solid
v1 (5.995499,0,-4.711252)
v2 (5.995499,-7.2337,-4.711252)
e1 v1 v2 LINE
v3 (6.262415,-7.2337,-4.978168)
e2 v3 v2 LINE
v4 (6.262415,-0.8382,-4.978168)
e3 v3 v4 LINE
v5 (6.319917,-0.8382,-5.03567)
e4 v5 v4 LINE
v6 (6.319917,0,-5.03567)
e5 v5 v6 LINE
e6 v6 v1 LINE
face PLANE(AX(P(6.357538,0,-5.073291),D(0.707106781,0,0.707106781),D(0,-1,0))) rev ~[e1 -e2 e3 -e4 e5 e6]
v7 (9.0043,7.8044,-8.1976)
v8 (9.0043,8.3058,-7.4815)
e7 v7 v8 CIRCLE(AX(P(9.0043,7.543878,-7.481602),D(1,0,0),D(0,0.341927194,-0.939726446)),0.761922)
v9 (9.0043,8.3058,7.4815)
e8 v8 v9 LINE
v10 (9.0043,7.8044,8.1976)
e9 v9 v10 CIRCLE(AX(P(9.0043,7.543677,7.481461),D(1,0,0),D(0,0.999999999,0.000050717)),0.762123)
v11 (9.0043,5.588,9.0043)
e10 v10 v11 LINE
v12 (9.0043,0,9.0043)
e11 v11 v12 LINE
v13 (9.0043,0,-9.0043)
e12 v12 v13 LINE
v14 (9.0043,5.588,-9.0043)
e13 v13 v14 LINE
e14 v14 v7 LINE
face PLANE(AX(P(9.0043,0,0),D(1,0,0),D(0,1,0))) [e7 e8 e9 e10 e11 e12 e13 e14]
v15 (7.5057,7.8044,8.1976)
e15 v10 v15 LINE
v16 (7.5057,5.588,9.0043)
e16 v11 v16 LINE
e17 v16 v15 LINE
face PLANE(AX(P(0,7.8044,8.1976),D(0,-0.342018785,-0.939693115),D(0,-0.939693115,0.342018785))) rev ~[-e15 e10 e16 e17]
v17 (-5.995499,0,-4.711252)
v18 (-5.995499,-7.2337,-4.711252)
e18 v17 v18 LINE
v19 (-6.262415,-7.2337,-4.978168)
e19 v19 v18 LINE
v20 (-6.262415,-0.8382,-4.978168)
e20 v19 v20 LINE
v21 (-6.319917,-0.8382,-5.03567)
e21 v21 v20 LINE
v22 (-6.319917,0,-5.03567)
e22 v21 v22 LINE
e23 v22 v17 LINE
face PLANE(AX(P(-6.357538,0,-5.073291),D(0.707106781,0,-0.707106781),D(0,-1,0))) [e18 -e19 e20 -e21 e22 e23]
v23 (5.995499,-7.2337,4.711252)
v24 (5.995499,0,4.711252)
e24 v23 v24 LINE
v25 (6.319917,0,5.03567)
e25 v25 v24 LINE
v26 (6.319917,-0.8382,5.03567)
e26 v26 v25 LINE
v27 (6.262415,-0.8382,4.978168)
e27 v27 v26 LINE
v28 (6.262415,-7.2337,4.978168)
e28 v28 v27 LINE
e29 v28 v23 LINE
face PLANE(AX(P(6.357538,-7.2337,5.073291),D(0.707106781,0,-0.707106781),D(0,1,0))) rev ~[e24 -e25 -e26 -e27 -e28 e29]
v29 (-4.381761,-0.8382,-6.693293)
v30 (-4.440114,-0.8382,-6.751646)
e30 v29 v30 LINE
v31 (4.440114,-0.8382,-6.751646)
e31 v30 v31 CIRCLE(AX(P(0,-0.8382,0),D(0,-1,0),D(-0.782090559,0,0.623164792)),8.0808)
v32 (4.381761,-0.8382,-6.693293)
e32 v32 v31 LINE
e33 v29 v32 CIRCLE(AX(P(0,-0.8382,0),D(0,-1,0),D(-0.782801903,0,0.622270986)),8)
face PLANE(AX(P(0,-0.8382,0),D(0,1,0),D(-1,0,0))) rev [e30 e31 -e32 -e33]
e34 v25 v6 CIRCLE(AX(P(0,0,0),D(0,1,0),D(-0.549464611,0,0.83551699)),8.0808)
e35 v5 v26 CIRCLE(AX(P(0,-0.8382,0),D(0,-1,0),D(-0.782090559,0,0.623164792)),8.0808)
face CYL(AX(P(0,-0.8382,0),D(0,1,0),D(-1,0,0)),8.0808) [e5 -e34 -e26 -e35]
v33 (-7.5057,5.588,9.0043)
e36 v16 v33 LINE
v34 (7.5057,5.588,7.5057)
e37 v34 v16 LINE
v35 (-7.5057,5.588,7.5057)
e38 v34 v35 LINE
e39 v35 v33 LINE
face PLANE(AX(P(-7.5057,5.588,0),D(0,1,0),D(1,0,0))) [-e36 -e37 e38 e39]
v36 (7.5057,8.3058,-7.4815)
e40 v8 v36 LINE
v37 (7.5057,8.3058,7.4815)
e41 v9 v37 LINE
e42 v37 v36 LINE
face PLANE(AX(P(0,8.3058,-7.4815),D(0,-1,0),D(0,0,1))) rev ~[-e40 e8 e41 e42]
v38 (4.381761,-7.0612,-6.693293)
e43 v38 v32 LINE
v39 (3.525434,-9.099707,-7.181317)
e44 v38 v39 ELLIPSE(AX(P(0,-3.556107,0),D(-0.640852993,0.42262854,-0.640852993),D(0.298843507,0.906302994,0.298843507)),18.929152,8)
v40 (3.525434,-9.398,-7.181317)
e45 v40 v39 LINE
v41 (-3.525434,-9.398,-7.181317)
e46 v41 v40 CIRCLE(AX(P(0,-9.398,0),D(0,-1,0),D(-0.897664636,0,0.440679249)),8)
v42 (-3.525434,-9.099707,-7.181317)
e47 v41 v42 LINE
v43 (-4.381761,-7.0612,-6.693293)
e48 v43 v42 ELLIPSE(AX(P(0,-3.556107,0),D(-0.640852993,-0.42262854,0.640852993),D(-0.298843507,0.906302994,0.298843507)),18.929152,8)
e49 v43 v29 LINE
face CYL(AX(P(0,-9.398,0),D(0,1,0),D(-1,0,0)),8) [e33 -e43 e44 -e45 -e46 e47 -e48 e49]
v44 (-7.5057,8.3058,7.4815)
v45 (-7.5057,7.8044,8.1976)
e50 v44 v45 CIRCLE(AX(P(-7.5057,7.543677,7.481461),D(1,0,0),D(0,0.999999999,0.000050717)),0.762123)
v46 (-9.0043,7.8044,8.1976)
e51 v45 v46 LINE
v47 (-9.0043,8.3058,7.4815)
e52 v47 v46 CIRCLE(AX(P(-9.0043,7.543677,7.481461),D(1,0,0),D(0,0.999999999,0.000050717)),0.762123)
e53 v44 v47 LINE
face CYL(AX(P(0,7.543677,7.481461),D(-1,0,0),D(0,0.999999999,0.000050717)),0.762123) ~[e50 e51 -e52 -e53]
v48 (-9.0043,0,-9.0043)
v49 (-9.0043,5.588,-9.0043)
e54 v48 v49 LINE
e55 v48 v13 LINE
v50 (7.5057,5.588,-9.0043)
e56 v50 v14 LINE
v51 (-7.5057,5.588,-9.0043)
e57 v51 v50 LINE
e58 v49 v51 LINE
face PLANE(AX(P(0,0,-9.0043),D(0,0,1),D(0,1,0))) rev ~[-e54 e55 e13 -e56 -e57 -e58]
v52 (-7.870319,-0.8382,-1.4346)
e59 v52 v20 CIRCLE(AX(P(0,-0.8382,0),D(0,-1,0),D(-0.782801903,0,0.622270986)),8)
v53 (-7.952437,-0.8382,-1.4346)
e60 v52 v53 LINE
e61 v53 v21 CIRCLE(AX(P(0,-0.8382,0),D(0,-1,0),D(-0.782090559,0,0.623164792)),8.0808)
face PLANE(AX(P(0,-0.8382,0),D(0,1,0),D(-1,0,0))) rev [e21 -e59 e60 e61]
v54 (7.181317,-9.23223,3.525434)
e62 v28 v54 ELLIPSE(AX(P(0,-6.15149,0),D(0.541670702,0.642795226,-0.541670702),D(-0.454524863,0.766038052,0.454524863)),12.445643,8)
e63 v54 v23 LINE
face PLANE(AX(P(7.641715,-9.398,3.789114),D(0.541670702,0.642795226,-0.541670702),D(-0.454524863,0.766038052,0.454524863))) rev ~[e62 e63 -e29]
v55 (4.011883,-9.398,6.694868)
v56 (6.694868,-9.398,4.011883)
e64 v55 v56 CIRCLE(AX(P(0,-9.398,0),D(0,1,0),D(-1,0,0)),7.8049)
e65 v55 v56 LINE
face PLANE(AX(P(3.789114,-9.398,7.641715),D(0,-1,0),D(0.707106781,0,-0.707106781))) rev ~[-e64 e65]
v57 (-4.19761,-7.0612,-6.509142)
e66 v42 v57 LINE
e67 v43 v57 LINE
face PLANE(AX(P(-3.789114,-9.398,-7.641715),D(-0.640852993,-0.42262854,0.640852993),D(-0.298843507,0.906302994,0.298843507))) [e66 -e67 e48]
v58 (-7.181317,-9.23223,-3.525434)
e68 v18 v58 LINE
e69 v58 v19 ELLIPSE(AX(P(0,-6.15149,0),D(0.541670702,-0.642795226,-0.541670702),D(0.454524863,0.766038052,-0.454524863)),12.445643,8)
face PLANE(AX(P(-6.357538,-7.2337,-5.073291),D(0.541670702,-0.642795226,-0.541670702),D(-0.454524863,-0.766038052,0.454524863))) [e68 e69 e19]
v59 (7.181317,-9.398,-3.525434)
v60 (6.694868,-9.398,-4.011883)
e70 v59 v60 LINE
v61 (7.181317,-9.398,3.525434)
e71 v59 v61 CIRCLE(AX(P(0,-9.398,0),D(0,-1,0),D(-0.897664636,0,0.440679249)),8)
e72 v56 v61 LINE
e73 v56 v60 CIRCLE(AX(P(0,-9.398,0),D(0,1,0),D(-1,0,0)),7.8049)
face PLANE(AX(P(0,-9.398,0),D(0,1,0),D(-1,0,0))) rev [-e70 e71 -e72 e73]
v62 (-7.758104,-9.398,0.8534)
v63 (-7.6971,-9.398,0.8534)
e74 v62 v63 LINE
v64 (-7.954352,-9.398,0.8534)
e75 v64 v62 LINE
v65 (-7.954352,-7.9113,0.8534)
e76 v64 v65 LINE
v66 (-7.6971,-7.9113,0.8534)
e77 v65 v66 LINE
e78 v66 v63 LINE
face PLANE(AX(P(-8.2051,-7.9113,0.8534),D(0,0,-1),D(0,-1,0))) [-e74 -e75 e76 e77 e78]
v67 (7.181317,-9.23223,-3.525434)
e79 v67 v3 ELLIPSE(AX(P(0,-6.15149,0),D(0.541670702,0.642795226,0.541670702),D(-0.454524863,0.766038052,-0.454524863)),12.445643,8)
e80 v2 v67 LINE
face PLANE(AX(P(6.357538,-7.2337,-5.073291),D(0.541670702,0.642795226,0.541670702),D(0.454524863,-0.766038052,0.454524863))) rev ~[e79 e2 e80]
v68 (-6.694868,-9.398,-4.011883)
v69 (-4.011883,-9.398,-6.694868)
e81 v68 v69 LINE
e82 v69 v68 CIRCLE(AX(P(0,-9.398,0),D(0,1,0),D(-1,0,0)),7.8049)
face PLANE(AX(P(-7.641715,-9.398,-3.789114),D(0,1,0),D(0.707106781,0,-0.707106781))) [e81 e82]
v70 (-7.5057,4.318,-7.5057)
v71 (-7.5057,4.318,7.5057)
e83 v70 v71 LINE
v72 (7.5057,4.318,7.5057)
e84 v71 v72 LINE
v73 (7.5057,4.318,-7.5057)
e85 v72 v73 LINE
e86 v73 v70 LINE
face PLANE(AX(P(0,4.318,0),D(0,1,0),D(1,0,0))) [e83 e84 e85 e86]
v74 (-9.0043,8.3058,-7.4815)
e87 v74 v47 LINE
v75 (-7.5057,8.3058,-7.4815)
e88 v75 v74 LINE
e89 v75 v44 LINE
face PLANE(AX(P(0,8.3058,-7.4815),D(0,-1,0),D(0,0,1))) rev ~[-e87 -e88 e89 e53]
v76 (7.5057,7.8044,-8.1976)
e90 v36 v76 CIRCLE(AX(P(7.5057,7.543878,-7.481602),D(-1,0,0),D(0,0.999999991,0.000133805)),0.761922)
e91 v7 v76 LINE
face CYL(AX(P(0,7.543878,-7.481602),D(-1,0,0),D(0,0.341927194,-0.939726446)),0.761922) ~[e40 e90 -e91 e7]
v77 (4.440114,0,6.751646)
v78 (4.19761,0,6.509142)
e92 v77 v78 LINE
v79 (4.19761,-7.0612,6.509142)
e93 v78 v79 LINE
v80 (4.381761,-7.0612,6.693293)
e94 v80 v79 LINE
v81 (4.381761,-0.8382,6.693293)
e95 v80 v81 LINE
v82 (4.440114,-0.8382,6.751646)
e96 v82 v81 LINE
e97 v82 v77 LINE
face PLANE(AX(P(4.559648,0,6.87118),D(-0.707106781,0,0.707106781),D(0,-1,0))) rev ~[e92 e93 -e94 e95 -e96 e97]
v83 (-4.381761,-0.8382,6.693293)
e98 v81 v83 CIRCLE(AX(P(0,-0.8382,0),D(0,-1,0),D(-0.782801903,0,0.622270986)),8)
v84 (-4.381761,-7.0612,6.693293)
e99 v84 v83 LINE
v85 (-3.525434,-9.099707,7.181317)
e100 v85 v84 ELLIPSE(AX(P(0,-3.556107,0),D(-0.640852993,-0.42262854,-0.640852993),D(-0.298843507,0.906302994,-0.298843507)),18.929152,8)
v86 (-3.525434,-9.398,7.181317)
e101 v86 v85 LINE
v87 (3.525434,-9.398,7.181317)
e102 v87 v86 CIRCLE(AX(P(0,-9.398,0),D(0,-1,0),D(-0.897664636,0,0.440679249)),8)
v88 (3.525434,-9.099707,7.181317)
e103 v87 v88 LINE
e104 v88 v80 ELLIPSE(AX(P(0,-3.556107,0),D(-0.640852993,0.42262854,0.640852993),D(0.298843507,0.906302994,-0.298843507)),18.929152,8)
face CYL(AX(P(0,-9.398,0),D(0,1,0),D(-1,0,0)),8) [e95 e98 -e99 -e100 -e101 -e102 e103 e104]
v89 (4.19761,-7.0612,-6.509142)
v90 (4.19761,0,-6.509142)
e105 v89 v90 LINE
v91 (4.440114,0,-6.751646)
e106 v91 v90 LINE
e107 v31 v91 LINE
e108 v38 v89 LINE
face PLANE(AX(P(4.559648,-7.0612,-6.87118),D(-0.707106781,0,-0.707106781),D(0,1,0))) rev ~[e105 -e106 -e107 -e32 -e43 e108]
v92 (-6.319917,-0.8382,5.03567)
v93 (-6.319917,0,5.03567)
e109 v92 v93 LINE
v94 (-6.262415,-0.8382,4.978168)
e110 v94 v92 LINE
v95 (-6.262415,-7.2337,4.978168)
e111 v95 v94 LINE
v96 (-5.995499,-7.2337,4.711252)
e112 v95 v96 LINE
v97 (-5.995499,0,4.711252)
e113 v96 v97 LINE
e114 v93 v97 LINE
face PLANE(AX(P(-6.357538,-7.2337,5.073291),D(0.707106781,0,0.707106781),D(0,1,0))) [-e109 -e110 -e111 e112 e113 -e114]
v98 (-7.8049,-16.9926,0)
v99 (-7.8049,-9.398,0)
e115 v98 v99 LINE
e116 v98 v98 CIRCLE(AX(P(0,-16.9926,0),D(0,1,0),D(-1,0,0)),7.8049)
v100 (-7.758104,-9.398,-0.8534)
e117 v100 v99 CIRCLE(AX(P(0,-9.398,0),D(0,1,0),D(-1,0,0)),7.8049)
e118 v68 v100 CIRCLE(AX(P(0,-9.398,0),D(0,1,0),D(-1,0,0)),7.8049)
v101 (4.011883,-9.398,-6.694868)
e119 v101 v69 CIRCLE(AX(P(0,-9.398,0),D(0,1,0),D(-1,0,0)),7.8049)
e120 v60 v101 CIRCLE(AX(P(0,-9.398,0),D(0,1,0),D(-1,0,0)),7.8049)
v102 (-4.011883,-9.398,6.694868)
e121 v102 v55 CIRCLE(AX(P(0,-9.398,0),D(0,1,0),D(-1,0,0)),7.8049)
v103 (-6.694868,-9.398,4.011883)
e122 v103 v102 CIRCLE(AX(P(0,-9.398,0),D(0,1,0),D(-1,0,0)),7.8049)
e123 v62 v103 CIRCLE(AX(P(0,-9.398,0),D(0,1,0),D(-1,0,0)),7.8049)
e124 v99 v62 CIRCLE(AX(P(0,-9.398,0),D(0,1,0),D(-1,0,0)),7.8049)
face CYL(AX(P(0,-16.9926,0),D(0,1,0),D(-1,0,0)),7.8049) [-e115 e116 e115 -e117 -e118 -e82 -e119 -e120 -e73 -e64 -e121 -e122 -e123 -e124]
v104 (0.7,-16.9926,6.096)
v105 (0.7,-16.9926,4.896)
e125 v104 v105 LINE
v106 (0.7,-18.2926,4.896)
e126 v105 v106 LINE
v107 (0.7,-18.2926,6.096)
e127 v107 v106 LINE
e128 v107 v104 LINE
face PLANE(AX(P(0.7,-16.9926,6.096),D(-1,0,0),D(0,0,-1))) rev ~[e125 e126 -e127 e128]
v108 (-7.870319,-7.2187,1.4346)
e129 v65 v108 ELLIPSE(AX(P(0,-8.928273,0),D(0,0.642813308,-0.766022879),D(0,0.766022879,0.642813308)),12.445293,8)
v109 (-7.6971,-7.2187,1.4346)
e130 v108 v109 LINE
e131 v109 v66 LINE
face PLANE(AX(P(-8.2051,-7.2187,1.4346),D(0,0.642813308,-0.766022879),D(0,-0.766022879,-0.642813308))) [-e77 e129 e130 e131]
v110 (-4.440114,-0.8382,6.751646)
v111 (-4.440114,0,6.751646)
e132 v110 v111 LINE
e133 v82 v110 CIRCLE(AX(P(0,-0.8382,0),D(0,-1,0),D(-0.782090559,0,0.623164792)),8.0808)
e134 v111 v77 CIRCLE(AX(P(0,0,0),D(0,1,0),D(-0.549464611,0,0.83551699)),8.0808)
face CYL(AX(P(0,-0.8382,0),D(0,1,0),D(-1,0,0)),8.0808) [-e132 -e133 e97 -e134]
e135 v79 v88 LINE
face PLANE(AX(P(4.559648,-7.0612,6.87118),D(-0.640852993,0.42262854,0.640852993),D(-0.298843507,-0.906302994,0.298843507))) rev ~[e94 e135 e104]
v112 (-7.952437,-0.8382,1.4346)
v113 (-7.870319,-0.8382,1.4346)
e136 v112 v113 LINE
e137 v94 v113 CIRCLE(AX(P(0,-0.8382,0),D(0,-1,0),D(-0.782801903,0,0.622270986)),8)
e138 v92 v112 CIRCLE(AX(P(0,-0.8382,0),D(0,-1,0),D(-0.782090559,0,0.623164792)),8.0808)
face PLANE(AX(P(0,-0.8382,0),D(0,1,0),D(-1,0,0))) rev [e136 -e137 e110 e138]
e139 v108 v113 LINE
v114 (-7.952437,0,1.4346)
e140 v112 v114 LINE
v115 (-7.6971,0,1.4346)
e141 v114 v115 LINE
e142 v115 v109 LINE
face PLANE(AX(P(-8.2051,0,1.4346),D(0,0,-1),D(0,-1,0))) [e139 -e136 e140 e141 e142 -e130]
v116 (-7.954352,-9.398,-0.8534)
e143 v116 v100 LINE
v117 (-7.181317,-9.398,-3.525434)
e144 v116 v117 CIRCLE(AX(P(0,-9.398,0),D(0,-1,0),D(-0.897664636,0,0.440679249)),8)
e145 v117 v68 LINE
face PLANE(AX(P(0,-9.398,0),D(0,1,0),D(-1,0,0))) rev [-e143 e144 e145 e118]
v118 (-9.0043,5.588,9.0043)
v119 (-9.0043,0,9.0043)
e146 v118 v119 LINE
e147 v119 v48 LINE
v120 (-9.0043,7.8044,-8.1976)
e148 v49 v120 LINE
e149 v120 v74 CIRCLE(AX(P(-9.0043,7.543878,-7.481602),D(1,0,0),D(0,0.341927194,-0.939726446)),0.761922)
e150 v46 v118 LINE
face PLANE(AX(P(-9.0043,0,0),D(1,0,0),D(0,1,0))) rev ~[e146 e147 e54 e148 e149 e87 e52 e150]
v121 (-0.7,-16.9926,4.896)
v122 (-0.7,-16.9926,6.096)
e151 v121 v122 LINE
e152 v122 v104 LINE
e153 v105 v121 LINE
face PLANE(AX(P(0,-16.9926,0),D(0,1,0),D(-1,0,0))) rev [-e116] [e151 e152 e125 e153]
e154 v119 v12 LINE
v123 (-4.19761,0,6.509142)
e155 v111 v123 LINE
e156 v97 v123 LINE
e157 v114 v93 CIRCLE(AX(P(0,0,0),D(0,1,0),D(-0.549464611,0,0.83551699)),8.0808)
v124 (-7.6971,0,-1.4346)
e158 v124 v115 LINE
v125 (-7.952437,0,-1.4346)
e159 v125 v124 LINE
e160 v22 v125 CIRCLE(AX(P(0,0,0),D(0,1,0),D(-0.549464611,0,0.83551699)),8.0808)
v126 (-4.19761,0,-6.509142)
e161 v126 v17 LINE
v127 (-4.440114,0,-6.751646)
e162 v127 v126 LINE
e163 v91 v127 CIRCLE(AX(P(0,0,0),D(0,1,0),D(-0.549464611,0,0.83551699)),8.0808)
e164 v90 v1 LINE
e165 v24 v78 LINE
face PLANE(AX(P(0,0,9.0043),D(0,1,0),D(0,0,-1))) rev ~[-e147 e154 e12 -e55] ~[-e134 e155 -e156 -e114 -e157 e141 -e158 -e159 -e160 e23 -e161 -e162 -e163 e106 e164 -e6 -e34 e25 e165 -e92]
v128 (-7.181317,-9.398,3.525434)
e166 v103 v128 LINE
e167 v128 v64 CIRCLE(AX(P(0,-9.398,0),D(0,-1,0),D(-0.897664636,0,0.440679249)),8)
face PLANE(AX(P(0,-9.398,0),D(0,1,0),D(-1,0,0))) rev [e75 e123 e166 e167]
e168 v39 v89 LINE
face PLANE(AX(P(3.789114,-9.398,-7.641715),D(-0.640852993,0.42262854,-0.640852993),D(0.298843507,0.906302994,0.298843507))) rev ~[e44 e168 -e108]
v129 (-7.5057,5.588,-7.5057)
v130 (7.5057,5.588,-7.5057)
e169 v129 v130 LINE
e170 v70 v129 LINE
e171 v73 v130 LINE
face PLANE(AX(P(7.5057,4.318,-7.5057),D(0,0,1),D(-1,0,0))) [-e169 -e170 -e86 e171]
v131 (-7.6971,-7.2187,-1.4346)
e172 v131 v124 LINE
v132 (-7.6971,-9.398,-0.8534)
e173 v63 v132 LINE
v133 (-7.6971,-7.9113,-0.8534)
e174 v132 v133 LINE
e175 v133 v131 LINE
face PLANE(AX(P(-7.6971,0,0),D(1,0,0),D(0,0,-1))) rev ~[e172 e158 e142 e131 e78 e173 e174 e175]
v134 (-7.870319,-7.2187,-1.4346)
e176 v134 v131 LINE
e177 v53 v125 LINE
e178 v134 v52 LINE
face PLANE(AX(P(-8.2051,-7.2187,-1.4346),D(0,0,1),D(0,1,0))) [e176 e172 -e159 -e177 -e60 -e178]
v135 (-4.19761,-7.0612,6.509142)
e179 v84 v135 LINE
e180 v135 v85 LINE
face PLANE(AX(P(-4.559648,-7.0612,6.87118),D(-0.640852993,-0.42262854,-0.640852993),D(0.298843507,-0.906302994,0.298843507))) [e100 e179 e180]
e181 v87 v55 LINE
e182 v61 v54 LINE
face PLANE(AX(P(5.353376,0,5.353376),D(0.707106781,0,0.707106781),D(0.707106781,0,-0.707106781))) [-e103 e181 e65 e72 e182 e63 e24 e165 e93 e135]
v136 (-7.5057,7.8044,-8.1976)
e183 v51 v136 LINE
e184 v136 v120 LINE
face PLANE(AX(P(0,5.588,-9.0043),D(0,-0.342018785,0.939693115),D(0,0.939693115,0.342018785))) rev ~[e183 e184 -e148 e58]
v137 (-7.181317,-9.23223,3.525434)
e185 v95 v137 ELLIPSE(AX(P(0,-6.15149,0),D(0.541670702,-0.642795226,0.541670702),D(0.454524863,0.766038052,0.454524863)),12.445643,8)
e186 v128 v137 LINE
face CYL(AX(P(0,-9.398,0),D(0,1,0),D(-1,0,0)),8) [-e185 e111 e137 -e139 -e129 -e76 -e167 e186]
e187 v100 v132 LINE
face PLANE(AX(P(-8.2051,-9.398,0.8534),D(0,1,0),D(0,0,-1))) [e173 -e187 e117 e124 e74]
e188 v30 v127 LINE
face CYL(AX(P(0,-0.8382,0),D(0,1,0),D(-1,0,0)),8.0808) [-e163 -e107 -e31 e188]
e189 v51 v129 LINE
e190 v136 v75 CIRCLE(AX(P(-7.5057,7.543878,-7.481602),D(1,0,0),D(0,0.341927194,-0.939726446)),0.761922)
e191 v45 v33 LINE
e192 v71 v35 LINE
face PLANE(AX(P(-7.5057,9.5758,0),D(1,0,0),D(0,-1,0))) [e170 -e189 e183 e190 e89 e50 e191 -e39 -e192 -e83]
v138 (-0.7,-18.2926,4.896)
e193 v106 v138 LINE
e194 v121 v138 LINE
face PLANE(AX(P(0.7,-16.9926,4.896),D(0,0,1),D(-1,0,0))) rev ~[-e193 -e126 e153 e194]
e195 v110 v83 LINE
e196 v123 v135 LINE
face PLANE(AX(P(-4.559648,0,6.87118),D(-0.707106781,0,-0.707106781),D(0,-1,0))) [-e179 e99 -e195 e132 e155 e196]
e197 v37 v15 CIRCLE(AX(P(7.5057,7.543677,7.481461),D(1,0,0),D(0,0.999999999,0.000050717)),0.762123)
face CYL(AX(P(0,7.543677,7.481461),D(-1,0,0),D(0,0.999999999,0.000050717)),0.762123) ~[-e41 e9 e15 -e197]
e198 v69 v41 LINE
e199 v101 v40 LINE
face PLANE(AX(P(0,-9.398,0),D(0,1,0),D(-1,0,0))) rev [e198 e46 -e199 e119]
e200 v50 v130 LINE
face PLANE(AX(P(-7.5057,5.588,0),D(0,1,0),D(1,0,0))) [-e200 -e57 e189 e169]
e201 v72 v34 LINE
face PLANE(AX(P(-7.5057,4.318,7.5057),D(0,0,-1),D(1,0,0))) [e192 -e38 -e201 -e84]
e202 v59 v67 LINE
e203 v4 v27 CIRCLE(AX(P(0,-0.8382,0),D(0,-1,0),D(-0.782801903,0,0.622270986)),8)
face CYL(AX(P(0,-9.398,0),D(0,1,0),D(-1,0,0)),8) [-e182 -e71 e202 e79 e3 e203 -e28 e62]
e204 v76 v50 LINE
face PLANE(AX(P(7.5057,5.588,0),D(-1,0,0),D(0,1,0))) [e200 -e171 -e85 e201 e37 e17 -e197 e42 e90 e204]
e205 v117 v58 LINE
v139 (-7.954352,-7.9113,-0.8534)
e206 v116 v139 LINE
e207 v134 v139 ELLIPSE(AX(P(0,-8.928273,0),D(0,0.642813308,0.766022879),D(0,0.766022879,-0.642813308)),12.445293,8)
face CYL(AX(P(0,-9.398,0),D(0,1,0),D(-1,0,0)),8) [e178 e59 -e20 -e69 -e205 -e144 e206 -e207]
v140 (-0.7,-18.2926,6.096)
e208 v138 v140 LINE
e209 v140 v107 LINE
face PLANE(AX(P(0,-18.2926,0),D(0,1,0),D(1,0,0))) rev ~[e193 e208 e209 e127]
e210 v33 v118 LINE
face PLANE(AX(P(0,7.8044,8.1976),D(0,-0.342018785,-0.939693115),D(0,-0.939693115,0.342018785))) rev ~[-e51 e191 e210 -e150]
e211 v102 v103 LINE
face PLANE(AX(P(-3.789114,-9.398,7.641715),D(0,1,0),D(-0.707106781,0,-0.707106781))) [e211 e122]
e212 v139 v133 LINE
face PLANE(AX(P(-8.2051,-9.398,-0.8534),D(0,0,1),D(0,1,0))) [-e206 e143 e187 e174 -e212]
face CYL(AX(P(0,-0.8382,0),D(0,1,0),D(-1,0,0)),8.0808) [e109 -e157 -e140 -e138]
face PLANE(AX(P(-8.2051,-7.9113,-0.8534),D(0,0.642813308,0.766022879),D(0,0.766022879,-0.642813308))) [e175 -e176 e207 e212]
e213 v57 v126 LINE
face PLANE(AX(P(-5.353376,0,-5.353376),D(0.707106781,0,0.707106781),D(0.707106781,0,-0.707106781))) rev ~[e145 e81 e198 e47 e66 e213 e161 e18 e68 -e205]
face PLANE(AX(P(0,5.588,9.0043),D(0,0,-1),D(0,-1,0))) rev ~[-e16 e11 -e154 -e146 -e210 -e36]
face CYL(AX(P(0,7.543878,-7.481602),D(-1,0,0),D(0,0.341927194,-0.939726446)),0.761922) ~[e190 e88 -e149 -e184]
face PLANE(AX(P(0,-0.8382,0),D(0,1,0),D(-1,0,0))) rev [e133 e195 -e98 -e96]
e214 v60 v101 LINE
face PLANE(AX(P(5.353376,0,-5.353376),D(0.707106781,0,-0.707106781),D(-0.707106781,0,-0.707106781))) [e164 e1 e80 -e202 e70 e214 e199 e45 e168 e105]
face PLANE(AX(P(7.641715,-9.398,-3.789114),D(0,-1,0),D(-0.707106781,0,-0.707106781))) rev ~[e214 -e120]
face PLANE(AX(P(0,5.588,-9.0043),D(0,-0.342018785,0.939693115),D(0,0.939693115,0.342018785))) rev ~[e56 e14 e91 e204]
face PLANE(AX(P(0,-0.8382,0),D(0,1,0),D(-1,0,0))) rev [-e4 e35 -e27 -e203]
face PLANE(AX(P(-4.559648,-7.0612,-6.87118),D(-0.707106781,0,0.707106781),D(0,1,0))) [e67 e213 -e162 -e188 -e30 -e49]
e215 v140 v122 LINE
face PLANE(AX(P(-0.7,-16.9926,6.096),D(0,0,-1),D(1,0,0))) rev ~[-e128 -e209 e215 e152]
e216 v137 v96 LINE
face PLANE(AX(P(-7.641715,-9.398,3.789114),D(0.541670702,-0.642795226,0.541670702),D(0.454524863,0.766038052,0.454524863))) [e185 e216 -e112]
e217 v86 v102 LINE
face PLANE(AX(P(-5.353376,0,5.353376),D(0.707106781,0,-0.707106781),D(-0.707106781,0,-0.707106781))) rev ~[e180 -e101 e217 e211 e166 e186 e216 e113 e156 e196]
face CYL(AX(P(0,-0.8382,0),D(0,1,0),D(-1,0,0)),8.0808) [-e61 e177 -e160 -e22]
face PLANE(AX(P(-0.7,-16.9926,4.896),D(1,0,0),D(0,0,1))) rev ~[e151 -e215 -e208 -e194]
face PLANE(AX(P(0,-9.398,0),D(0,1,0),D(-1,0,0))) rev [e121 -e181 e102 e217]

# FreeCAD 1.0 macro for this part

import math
import FreeCAD as App
import Part
import Sketcher
from FreeCAD import Vector
Q = App.Units.Quantity

doc = App.newDocument("Part")
params = doc.addObject("Spreadsheet::Sheet", "Params")
for row, (alias, value) in enumerate([
    ("sketch1_height", "0.37 in"),
    ("sketch1_height2", "0.033 in"),
    ("revolution_angle", "360 deg"),
    ("sketch2_height", "0.299 in"),
    ("revolution2_angle", "360 deg"),
    ("sketch3_height", "0.278 in"),
    ("pocket1_length", "0.02 in"),
    ("sketch4_height", "0.278 in"),
    ("pocket2_length", "0.02 in"),
    ("sketch5_height", "0.278 in"),
    ("pocket3_length", "0.02 in"),
    ("sketch6_height", "0.278 in"),
    ("pocket4_length", "0.02 in"),
    ("pocket5_length", "0.02 in"),
    ("sketch8_radius", "0.03 in"),
    ("sketch8_width", "0.22 in"),
    ("sketch8_height", "0.709 in"),
    ("pad1_length", "0.709 in"),
    ("sketch9_width", "0.591 in"),
    ("sketch9_height", "0.157 in"),
    ("pocket6_length", "1.182 in"),
    ("sketch10_width", "0.591 in"),
    ("pocket7_length", "0.327 in"),
    ("pad2_length", "2.6 mm"),
], start=1):
    params.set(f"A{row}", alias)
    params.set(f"B{row}", "=" + value)
    params.setAlias(f"B{row}", alias)

body = doc.addObject("PartDesign::Body", "Body")

# Sketch on XY plane
sketch1 = body.newObject("Sketcher::SketchObject", "Sketch")
sketch1.AttachmentSupport = (doc.getObject("XY_Plane"), [""])
sketch1.MapMode = "FlatFace"
sketch1.addGeometry(Part.LineSegment(Vector(0, -9.4, 0), Vector(0, 0, 0)), False)
sketch1.addGeometry(Part.LineSegment(Vector(0, 0, 0), Vector(-8.08, 0, 0)), False)
sketch1.addGeometry(Part.LineSegment(Vector(-8.08, 0, 0), Vector(-8.08, -0.84, 0)), False)
sketch1.addGeometry(Part.LineSegment(Vector(-8.08, -0.84, 0), Vector(-8, -0.84, 0)), False)
sketch1.addGeometry(Part.LineSegment(Vector(-8, -0.84, 0), Vector(-8, -9.4, 0)), False)
sketch1.addGeometry(Part.LineSegment(Vector(-8, -9.4, 0), Vector(0, -9.4, 0)), False)
sketch1.addConstraint(Sketcher.Constraint("Coincident", 0, 2, 1, 1))
sketch1.addConstraint(Sketcher.Constraint("Coincident", 1, 2, 2, 1))
sketch1.addConstraint(Sketcher.Constraint("Coincident", 2, 2, 3, 1))
sketch1.addConstraint(Sketcher.Constraint("Coincident", 3, 2, 4, 1))
sketch1.addConstraint(Sketcher.Constraint("Coincident", 4, 2, 5, 1))
sketch1.addConstraint(Sketcher.Constraint("Coincident", 5, 2, 0, 1))
sketch1.addConstraint(Sketcher.Constraint("Vertical", 0))
sketch1.addConstraint(Sketcher.Constraint("Horizontal", 1))
sketch1.addConstraint(Sketcher.Constraint("Vertical", 2))
sketch1.addConstraint(Sketcher.Constraint("Horizontal", 3))
sketch1.addConstraint(Sketcher.Constraint("Vertical", 4))
sketch1.addConstraint(Sketcher.Constraint("Horizontal", 5))
sketch1.addConstraint(Sketcher.Constraint("Coincident", 0, 2, -1, 1))
sketch1.addConstraint(Sketcher.Constraint("DistanceY", 0, 1, 0, 2, Q("0.37 in")))
sketch1.addConstraint(Sketcher.Constraint("DistanceY", 2, 2, 2, 1, Q("0.033 in")))
sketch1.addConstraint(Sketcher.Constraint("DistanceX", 1, 2, 1, 1, 8.0808))
sketch1.addConstraint(Sketcher.Constraint("DistanceX", 3, 1, 3, 2, 0.0808))
sketch1.setExpression("Constraints[13]", "Params.sketch1_height")
sketch1.setExpression("Constraints[14]", "Params.sketch1_height2")
revolution = body.newObject("PartDesign::Revolution", "Revolution")
revolution.Profile = sketch1
revolution.ReferenceAxis = (sketch1, ["V_Axis"])
revolution.setExpression("Angle", "Params.revolution_angle")

# Sketch on XY plane
sketch2 = body.newObject("Sketcher::SketchObject", "Sketch001")
sketch2.AttachmentSupport = (doc.getObject("XY_Plane"), [""])
sketch2.MapMode = "FlatFace"
sketch2.addGeometry(Part.LineSegment(Vector(0, -17, 0), Vector(0, -9, 0)), False)
sketch2.addGeometry(Part.LineSegment(Vector(0, -9, 0), Vector(-8, -9, 0)), False)
sketch2.addGeometry(Part.LineSegment(Vector(-8, -9, 0), Vector(-8, -17, 0)), False)
sketch2.addGeometry(Part.LineSegment(Vector(-8, -17, 0), Vector(0, -17, 0)), False)
sketch2.addConstraint(Sketcher.Constraint("Coincident", 0, 2, 1, 1))
sketch2.addConstraint(Sketcher.Constraint("Coincident", 1, 2, 2, 1))
sketch2.addConstraint(Sketcher.Constraint("Coincident", 2, 2, 3, 1))
sketch2.addConstraint(Sketcher.Constraint("Coincident", 3, 2, 0, 1))
sketch2.addConstraint(Sketcher.Constraint("Vertical", 0))
sketch2.addConstraint(Sketcher.Constraint("Horizontal", 1))
sketch2.addConstraint(Sketcher.Constraint("Vertical", 2))
sketch2.addConstraint(Sketcher.Constraint("Horizontal", 3))
sketch2.addConstraint(Sketcher.Constraint("PointOnObject", 0, 2, -2))
sketch2.addConstraint(Sketcher.Constraint("DistanceY", 0, 1, 0, 2, Q("0.299 in")))
sketch2.addConstraint(Sketcher.Constraint("DistanceY", 0, 2, -1, 1, Q("0.37 in")))
sketch2.addConstraint(Sketcher.Constraint("DistanceX", 1, 2, 1, 1, 7.805))
sketch2.setExpression("Constraints[9]", "Params.sketch2_height")
revolution2 = body.newObject("PartDesign::Revolution", "Revolution001")
revolution2.Profile = sketch2
revolution2.ReferenceAxis = (sketch2, ["V_Axis"])
revolution2.setExpression("Angle", "Params.revolution2_angle")

# Sketch on an angled plane
sketch3 = body.newObject("Sketcher::SketchObject", "Sketch002")
sketch3.Placement = App.Placement(Vector(-5.714, 0, 5.714), App.Rotation(Vector(-0.707106781, 0, -0.707106781), Vector(0, 0.999999999, 0), Vector(0.707106781, 0, -0.707106781), "ZXY"))
sketch3.addGeometry(Part.LineSegment(Vector(-1.6, -7.1, 0), Vector(-2.7, -9.4, 0)), False)
sketch3.addGeometry(Part.LineSegment(Vector(-2.7, -9.4, 0), Vector(2.7, -9.4, 0)), False)
sketch3.addGeometry(Part.LineSegment(Vector(2.7, -9.4, 0), Vector(0.9, -7.2, 0)), False)
sketch3.addGeometry(Part.LineSegment(Vector(0.9, -7.2, 0), Vector(0.9, 0, 0)), False)
sketch3.addGeometry(Part.LineSegment(Vector(0.9, 0, 0), Vector(-1.6, 0, 0)), False)
sketch3.addGeometry(Part.LineSegment(Vector(-1.6, 0, 0), Vector(-1.6, -7.1, 0)), False)
sketch3.addConstraint(Sketcher.Constraint("Coincident", 0, 2, 1, 1))
sketch3.addConstraint(Sketcher.Constraint("Coincident", 1, 2, 2, 1))
sketch3.addConstraint(Sketcher.Constraint("Coincident", 2, 2, 3, 1))
sketch3.addConstraint(Sketcher.Constraint("Coincident", 3, 2, 4, 1))
sketch3.addConstraint(Sketcher.Constraint("Coincident", 4, 2, 5, 1))
sketch3.addConstraint(Sketcher.Constraint("Coincident", 5, 2, 0, 1))
sketch3.addConstraint(Sketcher.Constraint("Horizontal", 1))
sketch3.addConstraint(Sketcher.Constraint("Vertical", 3))
sketch3.addConstraint(Sketcher.Constraint("Horizontal", 4))
sketch3.addConstraint(Sketcher.Constraint("Vertical", 5))
sketch3.addConstraint(Sketcher.Constraint("PointOnObject", 3, 2, -1))
sketch3.addConstraint(Sketcher.Constraint("Angle", 0, Q("-115.0006 deg")))
sketch3.addConstraint(Sketcher.Constraint("Angle", 2, Q("130.0006 deg")))
sketch3.addConstraint(Sketcher.Constraint("DistanceY", 5, 2, 5, 1, Q("0.278 in")))
sketch3.addConstraint(Sketcher.Constraint("DistanceY", 0, 2, -1, 1, Q("0.37 in")))
sketch3.addConstraint(Sketcher.Constraint("DistanceX", 1, 1, 1, 2, Q("0.2145 in")))
sketch3.addConstraint(Sketcher.Constraint("DistanceX", 4, 2, 4, 1, Q("0.1001 in")))
sketch3.addConstraint(Sketcher.Constraint("DistanceX", 0, 2, -1, 1, 2.7242))
sketch3.setExpression("Constraints[13]", "Params.sketch3_height")
pocket1 = body.newObject("PartDesign::Pocket", "Pocket")
pocket1.Profile = sketch3
pocket1.setExpression("Length", "Params.pocket1_length")
pocket1.Reversed = True

# Sketch on an angled plane
sketch4 = body.newObject("Sketcher::SketchObject", "Sketch003")
sketch4.Placement = App.Placement(Vector(5.714, 0, 5.714), App.Rotation(Vector(0.707106781, 0, -0.707106781), Vector(0, 0.999999999, 0), Vector(0.707106781, 0, 0.707106781), "ZXY"))
sketch4.addGeometry(Part.LineSegment(Vector(-1.6, -7.1, 0), Vector(-2.7, -9.4, 0)), False)
sketch4.addGeometry(Part.LineSegment(Vector(-2.7, -9.4, 0), Vector(2.7, -9.4, 0)), False)
sketch4.addGeometry(Part.LineSegment(Vector(2.7, -9.4, 0), Vector(0.9, -7.2, 0)), False)
sketch4.addGeometry(Part.LineSegment(Vector(0.9, -7.2, 0), Vector(0.9, 0, 0)), False)
sketch4.addGeometry(Part.LineSegment(Vector(0.9, 0, 0), Vector(-1.6, 0, 0)), False)
sketch4.addGeometry(Part.LineSegment(Vector(-1.6, 0, 0), Vector(-1.6, -7.1, 0)), False)
sketch4.addConstraint(Sketcher.Constraint("Coincident", 0, 2, 1, 1))
sketch4.addConstraint(Sketcher.Constraint("Coincident", 1, 2, 2, 1))
sketch4.addConstraint(Sketcher.Constraint("Coincident", 2, 2, 3, 1))
sketch4.addConstraint(Sketcher.Constraint("Coincident", 3, 2, 4, 1))
sketch4.addConstraint(Sketcher.Constraint("Coincident", 4, 2, 5, 1))
sketch4.addConstraint(Sketcher.Constraint("Coincident", 5, 2, 0, 1))
sketch4.addConstraint(Sketcher.Constraint("Horizontal", 1))
sketch4.addConstraint(Sketcher.Constraint("Vertical", 3))
sketch4.addConstraint(Sketcher.Constraint("Horizontal", 4))
sketch4.addConstraint(Sketcher.Constraint("Vertical", 5))
sketch4.addConstraint(Sketcher.Constraint("PointOnObject", 3, 2, -1))
sketch4.addConstraint(Sketcher.Constraint("Angle", 0, Q("-115.0006 deg")))
sketch4.addConstraint(Sketcher.Constraint("Angle", 2, Q("130.0006 deg")))
sketch4.addConstraint(Sketcher.Constraint("DistanceY", 5, 2, 5, 1, Q("0.278 in")))
sketch4.addConstraint(Sketcher.Constraint("DistanceY", 0, 2, -1, 1, Q("0.37 in")))
sketch4.addConstraint(Sketcher.Constraint("DistanceX", 1, 1, 1, 2, Q("0.2145 in")))
sketch4.addConstraint(Sketcher.Constraint("DistanceX", 4, 2, 4, 1, Q("0.1001 in")))
sketch4.addConstraint(Sketcher.Constraint("DistanceX", 0, 2, -1, 1, 2.7242))
sketch4.setExpression("Constraints[13]", "Params.sketch4_height")
pocket2 = body.newObject("PartDesign::Pocket", "Pocket001")
pocket2.Profile = sketch4
pocket2.setExpression("Length", "Params.pocket2_length")

# Sketch on an angled plane
sketch5 = body.newObject("Sketcher::SketchObject", "Sketch004")
sketch5.Placement = App.Placement(Vector(5.714, 0, -5.714), App.Rotation(Vector(-0.707106781, 0, -0.707106781), Vector(0, 0.999999999, 0), Vector(0.707106781, 0, -0.707106781), "ZXY"))
sketch5.addGeometry(Part.LineSegment(Vector(-0.9, -7.2, 0), Vector(-2.7, -9.4, 0)), False)
sketch5.addGeometry(Part.LineSegment(Vector(-2.7, -9.4, 0), Vector(2.7, -9.4, 0)), False)
sketch5.addGeometry(Part.LineSegment(Vector(2.7, -9.4, 0), Vector(1.6, -7.1, 0)), False)
sketch5.addGeometry(Part.LineSegment(Vector(1.6, -7.1, 0), Vector(1.6, 0, 0)), False)
sketch5.addGeometry(Part.LineSegment(Vector(1.6, 0, 0), Vector(-0.9, 0, 0)), False)
sketch5.addGeometry(Part.LineSegment(Vector(-0.9, 0, 0), Vector(-0.9, -7.2, 0)), False)
sketch5.addConstraint(Sketcher.Constraint("Coincident", 0, 2, 1, 1))
sketch5.addConstraint(Sketcher.Constraint("Coincident", 1, 2, 2, 1))
sketch5.addConstraint(Sketcher.Constraint("Coincident", 2, 2, 3, 1))
sketch5.addConstraint(Sketcher.Constraint("Coincident", 3, 2, 4, 1))
sketch5.addConstraint(Sketcher.Constraint("Coincident", 4, 2, 5, 1))
sketch5.addConstraint(Sketcher.Constraint("Coincident", 5, 2, 0, 1))
sketch5.addConstraint(Sketcher.Constraint("Horizontal", 1))
sketch5.addConstraint(Sketcher.Constraint("Vertical", 3))
sketch5.addConstraint(Sketcher.Constraint("Horizontal", 4))
sketch5.addConstraint(Sketcher.Constraint("Vertical", 5))
sketch5.addConstraint(Sketcher.Constraint("PointOnObject", 3, 2, -1))
sketch5.addConstraint(Sketcher.Constraint("Angle", 0, Q("-130.0006 deg")))
sketch5.addConstraint(Sketcher.Constraint("Angle", 2, Q("115.0006 deg")))
sketch5.addConstraint(Sketcher.Constraint("DistanceY", 3, 1, 3, 2, Q("0.278 in")))
sketch5.addConstraint(Sketcher.Constraint("DistanceY", 0, 2, -1, 1, Q("0.37 in")))
sketch5.addConstraint(Sketcher.Constraint("DistanceX", 1, 1, 1, 2, Q("0.2145 in")))
sketch5.addConstraint(Sketcher.Constraint("DistanceX", 4, 2, 4, 1, Q("0.1001 in")))
sketch5.addConstraint(Sketcher.Constraint("DistanceX", 0, 2, -1, 1, 2.7242))
sketch5.setExpression("Constraints[13]", "Params.sketch5_height")
pocket3 = body.newObject("PartDesign::Pocket", "Pocket002")
pocket3.Profile = sketch5
pocket3.setExpression("Length", "Params.pocket3_length")

# Sketch on an angled plane
sketch6 = body.newObject("Sketcher::SketchObject", "Sketch005")
sketch6.Placement = App.Placement(Vector(-5.714, 0, -5.714), App.Rotation(Vector(0.707106781, 0, -0.707106781), Vector(0, 0.999999999, 0), Vector(0.707106781, 0, 0.707106781), "ZXY"))
sketch6.addGeometry(Part.LineSegment(Vector(-0.9, -7.2, 0), Vector(-2.7, -9.4, 0)), False)
sketch6.addGeometry(Part.LineSegment(Vector(-2.7, -9.4, 0), Vector(2.7, -9.4, 0)), False)
sketch6.addGeometry(Part.LineSegment(Vector(2.7, -9.4, 0), Vector(1.6, -7.1, 0)), False)
sketch6.addGeometry(Part.LineSegment(Vector(1.6, -7.1, 0), Vector(1.6, 0, 0)), False)
sketch6.addGeometry(Part.LineSegment(Vector(1.6, 0, 0), Vector(-0.9, 0, 0)), False)
sketch6.addGeometry(Part.LineSegment(Vector(-0.9, 0, 0), Vector(-0.9, -7.2, 0)), False)
sketch6.addConstraint(Sketcher.Constraint("Coincident", 0, 2, 1, 1))
sketch6.addConstraint(Sketcher.Constraint("Coincident", 1, 2, 2, 1))
sketch6.addConstraint(Sketcher.Constraint("Coincident", 2, 2, 3, 1))
sketch6.addConstraint(Sketcher.Constraint("Coincident", 3, 2, 4, 1))
sketch6.addConstraint(Sketcher.Constraint("Coincident", 4, 2, 5, 1))
sketch6.addConstraint(Sketcher.Constraint("Coincident", 5, 2, 0, 1))
sketch6.addConstraint(Sketcher.Constraint("Horizontal", 1))
sketch6.addConstraint(Sketcher.Constraint("Vertical", 3))
sketch6.addConstraint(Sketcher.Constraint("Horizontal", 4))
sketch6.addConstraint(Sketcher.Constraint("Vertical", 5))
sketch6.addConstraint(Sketcher.Constraint("PointOnObject", 3, 2, -1))
sketch6.addConstraint(Sketcher.Constraint("Angle", 0, Q("-130.0006 deg")))
sketch6.addConstraint(Sketcher.Constraint("Angle", 2, Q("115.0006 deg")))
sketch6.addConstraint(Sketcher.Constraint("DistanceY", 3, 1, 3, 2, Q("0.278 in")))
sketch6.addConstraint(Sketcher.Constraint("DistanceY", 0, 2, -1, 1, Q("0.37 in")))
sketch6.addConstraint(Sketcher.Constraint("DistanceX", 1, 1, 1, 2, Q("0.2145 in")))
sketch6.addConstraint(Sketcher.Constraint("DistanceX", 4, 2, 4, 1, Q("0.1001 in")))
sketch6.addConstraint(Sketcher.Constraint("DistanceX", 0, 2, -1, 1, 2.7242))
sketch6.setExpression("Constraints[13]", "Params.sketch6_height")
pocket4 = body.newObject("PartDesign::Pocket", "Pocket003")
pocket4.Profile = sketch6
pocket4.setExpression("Length", "Params.pocket4_length")
pocket4.Reversed = True

# Sketch on YZ plane
sketch7 = body.newObject("Sketcher::SketchObject", "Sketch006")
sketch7.AttachmentSupport = (doc.getObject("YZ_Plane"), [""])
sketch7.MapMode = "FlatFace"
sketch7.AttachmentOffset = App.Placement(Vector(0, 0, -8.2051), App.Rotation())
sketch7.addGeometry(Part.LineSegment(Vector(0, 1.4, 0), Vector(-7.2, 1.4, 0)), False)
sketch7.addGeometry(Part.LineSegment(Vector(-7.2, 1.4, 0), Vector(-7.9, 0.9, 0)), False)
sketch7.addGeometry(Part.LineSegment(Vector(-7.9, 0.9, 0), Vector(-9.4, 0.9, 0)), False)
sketch7.addGeometry(Part.LineSegment(Vector(-9.4, 0.9, 0), Vector(-9.4, -0.9, 0)), False)
sketch7.addGeometry(Part.LineSegment(Vector(-9.4, -0.9, 0), Vector(-7.9, -0.9, 0)), False)
sketch7.addGeometry(Part.LineSegment(Vector(-7.9, -0.9, 0), Vector(-7.2, -1.4, 0)), False)
sketch7.addGeometry(Part.LineSegment(Vector(-7.2, -1.4, 0), Vector(0, -1.4, 0)), False)
sketch7.addGeometry(Part.LineSegment(Vector(0, -1.4, 0), Vector(0, 1.4, 0)), False)
sketch7.addConstraint(Sketcher.Constraint("Coincident", 0, 2, 1, 1))
sketch7.addConstraint(Sketcher.Constraint("Coincident", 1, 2, 2, 1))
sketch7.addConstraint(Sketcher.Constraint("Coincident", 2, 2, 3, 1))
sketch7.addConstraint(Sketcher.Constraint("Coincident", 3, 2, 4, 1))
sketch7.addConstraint(Sketcher.Constraint("Coincident", 4, 2, 5, 1))
sketch7.addConstraint(Sketcher.Constraint("Coincident", 5, 2, 6, 1))
sketch7.addConstraint(Sketcher.Constraint("Coincident", 6, 2, 7, 1))
sketch7.addConstraint(Sketcher.Constraint("Coincident", 7, 2, 0, 1))
sketch7.addConstraint(Sketcher.Constraint("Horizontal", 0))
sketch7.addConstraint(Sketcher.Constraint("Horizontal", 2))
sketch7.addConstraint(Sketcher.Constraint("Vertical", 3))
sketch7.addConstraint(Sketcher.Constraint("Horizontal", 4))
sketch7.addConstraint(Sketcher.Constraint("Horizontal", 6))
sketch7.addConstraint(Sketcher.Constraint("Vertical", 7))
sketch7.addConstraint(Sketcher.Constraint("Symmetric", 6, 2, 7, 2, -1, 1))
sketch7.addConstraint(Sketcher.Constraint("Symmetric", 1, 2, 4, 2, -1))
sketch7.addConstraint(Sketcher.Constraint("Vertical", 0, 2, 5, 2))
sketch7.addConstraint(Sketcher.Constraint("DistanceX", 2, 2, -1, 1, Q("0.37 in")))
sketch7.addConstraint(Sketcher.Constraint("DistanceX", 0, 2, 0, 1, Q("0.2842 in")))
sketch7.addConstraint(Sketcher.Constraint("DistanceY", 3, 2, 3, 1, Q("0.0672 in")))
sketch7.addConstraint(Sketcher.Constraint("Distance", 1, Q("0.0356 in")))
sketch7.addConstraint(Sketcher.Constraint("DistanceX", 2, 2, 2, 1, 1.4867))
pocket5 = body.newObject("PartDesign::Pocket", "Pocket004")
pocket5.Profile = sketch7
pocket5.setExpression("Length", "Params.pocket5_length")
pocket5.Reversed = True

# Sketch on YZ plane
sketch8 = body.newObject("Sketcher::SketchObject", "Sketch007")
sketch8.AttachmentSupport = (doc.getObject("YZ_Plane"), [""])
sketch8.MapMode = "FlatFace"
sketch8.addGeometry(Part.LineSegment(Vector(5.6, 9, 0), Vector(0, 9, 0)), False)
sketch8.addGeometry(Part.LineSegment(Vector(0, 9, 0), Vector(0, -9, 0)), False)
sketch8.addGeometry(Part.LineSegment(Vector(0, -9, 0), Vector(5.6, -9, 0)), False)
sketch8.addGeometry(Part.LineSegment(Vector(5.6, -9, 0), Vector(7.8, -8.2, 0)), False)
sketch8.addGeometry(Part.ArcOfCircle(Part.Circle(Vector(7.5, -7.5, 0), Vector(0, 0, 1), 0.8), math.radians(-70), math.radians(0)), False)
sketch8.addGeometry(Part.LineSegment(Vector(8.3, -7.5, 0), Vector(8.3, 7.5, 0)), False)
sketch8.addGeometry(Part.ArcOfCircle(Part.Circle(Vector(7.5, 7.5, 0), Vector(0, 0, 1), 0.8), math.radians(0), math.radians(70)), False)
sketch8.addGeometry(Part.LineSegment(Vector(7.8, 8.2, 0), Vector(5.6, 9, 0)), False)
sketch8.addConstraint(Sketcher.Constraint("Coincident", 0, 2, 1, 1))
sketch8.addConstraint(Sketcher.Constraint("Coincident", 1, 2, 2, 1))
sketch8.addConstraint(Sketcher.Constraint("Coincident", 2, 2, 3, 1))
sketch8.addConstraint(Sketcher.Constraint("Tangent", 3, 2, 4, 1))
sketch8.addConstraint(Sketcher.Constraint("Tangent", 4, 2, 5, 1))
sketch8.addConstraint(Sketcher.Constraint("Tangent", 5, 2, 6, 1))
sketch8.addConstraint(Sketcher.Constraint("Tangent", 6, 2, 7, 1))
sketch8.addConstraint(Sketcher.Constraint("Coincident", 7, 2, 0, 1))
sketch8.addConstraint(Sketcher.Constraint("Horizontal", 0))
sketch8.addConstraint(Sketcher.Constraint("Vertical", 1))
sketch8.addConstraint(Sketcher.Constraint("Horizontal", 2))
sketch8.addConstraint(Sketcher.Constraint("Vertical", 5))
sketch8.addConstraint(Sketcher.Constraint("Equal", 4, 6))
sketch8.addConstraint(Sketcher.Constraint("Symmetric", 0, 2, 1, 2, -1, 1))
sketch8.addConstraint(Sketcher.Constraint("Symmetric", 3, 2, 6, 2, -1))
sketch8.addConstraint(Sketcher.Constraint("Radius", 4, Q("0.03 in")))
sketch8.addConstraint(Sketcher.Constraint("Angle", 3, Q("20 deg")))
sketch8.addConstraint(Sketcher.Constraint("DistanceX", 0, 2, 0, 1, Q("0.22 in")))
sketch8.addConstraint(Sketcher.Constraint("DistanceY", 1, 2, 1, 1, Q("0.709 in")))
sketch8.addConstraint(Sketcher.Constraint("DistanceY", 5, 1, 5, 2, Q("0.5891 in")))
sketch8.setExpression("Constraints[15]", "Params.sketch8_radius")
sketch8.setExpression("Constraints[17]", "Params.sketch8_width")
sketch8.setExpression("Constraints[18]", "Params.sketch8_height")
pad1 = body.newObject("PartDesign::Pad", "Pad")
pad1.Profile = sketch8
pad1.setExpression("Length", "Params.pad1_length")
pad1.Midplane = True

# Sketch on XY plane
sketch9 = body.newObject("Sketcher::SketchObject", "Sketch008")
sketch9.AttachmentSupport = (doc.getObject("XY_Plane"), [""])
sketch9.MapMode = "FlatFace"
sketch9.addGeometry(Part.LineSegment(Vector(-7.5, 9.6, 0), Vector(-7.5, 5.6, 0)), False)
sketch9.addGeometry(Part.LineSegment(Vector(-7.5, 5.6, 0), Vector(7.5, 5.6, 0)), False)
sketch9.addGeometry(Part.LineSegment(Vector(7.5, 5.6, 0), Vector(7.5, 9.6, 0)), False)
sketch9.addGeometry(Part.LineSegment(Vector(7.5, 9.6, 0), Vector(-7.5, 9.6, 0)), False)
sketch9.addConstraint(Sketcher.Constraint("Coincident", 0, 2, 1, 1))
sketch9.addConstraint(Sketcher.Constraint("Coincident", 1, 2, 2, 1))
sketch9.addConstraint(Sketcher.Constraint("Coincident", 2, 2, 3, 1))
sketch9.addConstraint(Sketcher.Constraint("Coincident", 3, 2, 0, 1))
sketch9.addConstraint(Sketcher.Constraint("Vertical", 0))
sketch9.addConstraint(Sketcher.Constraint("Horizontal", 1))
sketch9.addConstraint(Sketcher.Constraint("Vertical", 2))
sketch9.addConstraint(Sketcher.Constraint("Horizontal", 3))
sketch9.addConstraint(Sketcher.Constraint("DistanceX", 1, 1, 1, 2, Q("0.591 in")))
sketch9.addConstraint(Sketcher.Constraint("DistanceY", 0, 2, 0, 1, Q("0.157 in")))
sketch9.addConstraint(Sketcher.Constraint("DistanceY", -1, 1, 0, 2, Q("0.22 in")))
sketch9.addConstraint(Sketcher.Constraint("DistanceX", 0, 2, -1, 1, Q("0.2955 in")))
sketch9.setExpression("Constraints[8]", "Params.sketch9_width")
sketch9.setExpression("Constraints[9]", "Params.sketch9_height")
pocket6 = body.newObject("PartDesign::Pocket", "Pocket005")
pocket6.Profile = sketch9
pocket6.setExpression("Length", "Params.pocket6_length")
pocket6.Midplane = True

# Sketch on XZ plane
sketch10 = body.newObject("Sketcher::SketchObject", "Sketch009")
sketch10.AttachmentSupport = (doc.getObject("XZ_Plane"), [""])
sketch10.MapMode = "FlatFace"
sketch10.AttachmentOffset = App.Placement(Vector(0, 0, -0.17 * 25.4), App.Rotation())
sketch10.addGeometry(Part.LineSegment(Vector(8, -8, 0), Vector(-8, -8, 0)), False)
sketch10.addGeometry(Part.LineSegment(Vector(-8, -8, 0), Vector(-8, 8, 0)), False)
sketch10.addGeometry(Part.LineSegment(Vector(-8, 8, 0), Vector(8, 8, 0)), False)
sketch10.addGeometry(Part.LineSegment(Vector(8, 8, 0), Vector(8, -8, 0)), False)
sketch10.addConstraint(Sketcher.Constraint("Coincident", 0, 2, 1, 1))
sketch10.addConstraint(Sketcher.Constraint("Coincident", 1, 2, 2, 1))
sketch10.addConstraint(Sketcher.Constraint("Coincident", 2, 2, 3, 1))
sketch10.addConstraint(Sketcher.Constraint("Coincident", 3, 2, 0, 1))
sketch10.addConstraint(Sketcher.Constraint("Horizontal", 0))
sketch10.addConstraint(Sketcher.Constraint("Vertical", 1))
sketch10.addConstraint(Sketcher.Constraint("Horizontal", 2))
sketch10.addConstraint(Sketcher.Constraint("Vertical", 3))
sketch10.addConstraint(Sketcher.Constraint("Symmetric", 0, 2, 2, 2, -1, 1))
sketch10.addConstraint(Sketcher.Constraint("Equal", 2, 1))
sketch10.addConstraint(Sketcher.Constraint("DistanceX", 0, 2, 0, 1, Q("0.591 in")))
sketch10.setExpression("Constraints[10]", "Params.sketch10_width")
pocket7 = body.newObject("PartDesign::Pocket", "Pocket006")
pocket7.Profile = sketch10
pocket7.setExpression("Length", "Params.pocket7_length")

# Sketch on XZ plane
sketch11 = body.newObject("Sketcher::SketchObject", "Sketch010")
sketch11.AttachmentSupport = (doc.getObject("XZ_Plane"), [""])
sketch11.MapMode = "FlatFace"
sketch11.AttachmentOffset = App.Placement(Vector(0, 0, 0.669 * 25.4), App.Rotation())
sketch11.addGeometry(Part.LineSegment(Vector(-0.7, 4.9, 0), Vector(-0.7, 6.1, 0)), False)
sketch11.addGeometry(Part.LineSegment(Vector(-0.7, 6.1, 0), Vector(0.7, 6.1, 0)), False)
sketch11.addGeometry(Part.LineSegment(Vector(0.7, 6.1, 0), Vector(0.7, 4.9, 0)), False)
sketch11.addGeometry(Part.LineSegment(Vector(0.7, 4.9, 0), Vector(-0.7, 4.9, 0)), False)
sketch11.addConstraint(Sketcher.Constraint("Coincident", 0, 2, 1, 1))
sketch11.addConstraint(Sketcher.Constraint("Coincident", 1, 2, 2, 1))
sketch11.addConstraint(Sketcher.Constraint("Coincident", 2, 2, 3, 1))
sketch11.addConstraint(Sketcher.Constraint("Coincident", 3, 2, 0, 1))
sketch11.addConstraint(Sketcher.Constraint("Vertical", 0))
sketch11.addConstraint(Sketcher.Constraint("Horizontal", 1))
sketch11.addConstraint(Sketcher.Constraint("Vertical", 2))
sketch11.addConstraint(Sketcher.Constraint("Horizontal", 3))
sketch11.addConstraint(Sketcher.Constraint("DistanceY", -1, 1, 0, 2, Q("0.24 in")))
sketch11.addConstraint(Sketcher.Constraint("DistanceX", 1, 1, 1, 2, 1.4))
sketch11.addConstraint(Sketcher.Constraint("DistanceY", 0, 1, 0, 2, 1.2))
sketch11.addConstraint(Sketcher.Constraint("DistanceX", 0, 2, -1, 1, 0.7))
pad2 = body.newObject("PartDesign::Pad", "Pad001")
pad2.Profile = sketch11
pad2.setExpression("Length", "Params.pad2_length")
pad2.Midplane = True

doc.recompute()
